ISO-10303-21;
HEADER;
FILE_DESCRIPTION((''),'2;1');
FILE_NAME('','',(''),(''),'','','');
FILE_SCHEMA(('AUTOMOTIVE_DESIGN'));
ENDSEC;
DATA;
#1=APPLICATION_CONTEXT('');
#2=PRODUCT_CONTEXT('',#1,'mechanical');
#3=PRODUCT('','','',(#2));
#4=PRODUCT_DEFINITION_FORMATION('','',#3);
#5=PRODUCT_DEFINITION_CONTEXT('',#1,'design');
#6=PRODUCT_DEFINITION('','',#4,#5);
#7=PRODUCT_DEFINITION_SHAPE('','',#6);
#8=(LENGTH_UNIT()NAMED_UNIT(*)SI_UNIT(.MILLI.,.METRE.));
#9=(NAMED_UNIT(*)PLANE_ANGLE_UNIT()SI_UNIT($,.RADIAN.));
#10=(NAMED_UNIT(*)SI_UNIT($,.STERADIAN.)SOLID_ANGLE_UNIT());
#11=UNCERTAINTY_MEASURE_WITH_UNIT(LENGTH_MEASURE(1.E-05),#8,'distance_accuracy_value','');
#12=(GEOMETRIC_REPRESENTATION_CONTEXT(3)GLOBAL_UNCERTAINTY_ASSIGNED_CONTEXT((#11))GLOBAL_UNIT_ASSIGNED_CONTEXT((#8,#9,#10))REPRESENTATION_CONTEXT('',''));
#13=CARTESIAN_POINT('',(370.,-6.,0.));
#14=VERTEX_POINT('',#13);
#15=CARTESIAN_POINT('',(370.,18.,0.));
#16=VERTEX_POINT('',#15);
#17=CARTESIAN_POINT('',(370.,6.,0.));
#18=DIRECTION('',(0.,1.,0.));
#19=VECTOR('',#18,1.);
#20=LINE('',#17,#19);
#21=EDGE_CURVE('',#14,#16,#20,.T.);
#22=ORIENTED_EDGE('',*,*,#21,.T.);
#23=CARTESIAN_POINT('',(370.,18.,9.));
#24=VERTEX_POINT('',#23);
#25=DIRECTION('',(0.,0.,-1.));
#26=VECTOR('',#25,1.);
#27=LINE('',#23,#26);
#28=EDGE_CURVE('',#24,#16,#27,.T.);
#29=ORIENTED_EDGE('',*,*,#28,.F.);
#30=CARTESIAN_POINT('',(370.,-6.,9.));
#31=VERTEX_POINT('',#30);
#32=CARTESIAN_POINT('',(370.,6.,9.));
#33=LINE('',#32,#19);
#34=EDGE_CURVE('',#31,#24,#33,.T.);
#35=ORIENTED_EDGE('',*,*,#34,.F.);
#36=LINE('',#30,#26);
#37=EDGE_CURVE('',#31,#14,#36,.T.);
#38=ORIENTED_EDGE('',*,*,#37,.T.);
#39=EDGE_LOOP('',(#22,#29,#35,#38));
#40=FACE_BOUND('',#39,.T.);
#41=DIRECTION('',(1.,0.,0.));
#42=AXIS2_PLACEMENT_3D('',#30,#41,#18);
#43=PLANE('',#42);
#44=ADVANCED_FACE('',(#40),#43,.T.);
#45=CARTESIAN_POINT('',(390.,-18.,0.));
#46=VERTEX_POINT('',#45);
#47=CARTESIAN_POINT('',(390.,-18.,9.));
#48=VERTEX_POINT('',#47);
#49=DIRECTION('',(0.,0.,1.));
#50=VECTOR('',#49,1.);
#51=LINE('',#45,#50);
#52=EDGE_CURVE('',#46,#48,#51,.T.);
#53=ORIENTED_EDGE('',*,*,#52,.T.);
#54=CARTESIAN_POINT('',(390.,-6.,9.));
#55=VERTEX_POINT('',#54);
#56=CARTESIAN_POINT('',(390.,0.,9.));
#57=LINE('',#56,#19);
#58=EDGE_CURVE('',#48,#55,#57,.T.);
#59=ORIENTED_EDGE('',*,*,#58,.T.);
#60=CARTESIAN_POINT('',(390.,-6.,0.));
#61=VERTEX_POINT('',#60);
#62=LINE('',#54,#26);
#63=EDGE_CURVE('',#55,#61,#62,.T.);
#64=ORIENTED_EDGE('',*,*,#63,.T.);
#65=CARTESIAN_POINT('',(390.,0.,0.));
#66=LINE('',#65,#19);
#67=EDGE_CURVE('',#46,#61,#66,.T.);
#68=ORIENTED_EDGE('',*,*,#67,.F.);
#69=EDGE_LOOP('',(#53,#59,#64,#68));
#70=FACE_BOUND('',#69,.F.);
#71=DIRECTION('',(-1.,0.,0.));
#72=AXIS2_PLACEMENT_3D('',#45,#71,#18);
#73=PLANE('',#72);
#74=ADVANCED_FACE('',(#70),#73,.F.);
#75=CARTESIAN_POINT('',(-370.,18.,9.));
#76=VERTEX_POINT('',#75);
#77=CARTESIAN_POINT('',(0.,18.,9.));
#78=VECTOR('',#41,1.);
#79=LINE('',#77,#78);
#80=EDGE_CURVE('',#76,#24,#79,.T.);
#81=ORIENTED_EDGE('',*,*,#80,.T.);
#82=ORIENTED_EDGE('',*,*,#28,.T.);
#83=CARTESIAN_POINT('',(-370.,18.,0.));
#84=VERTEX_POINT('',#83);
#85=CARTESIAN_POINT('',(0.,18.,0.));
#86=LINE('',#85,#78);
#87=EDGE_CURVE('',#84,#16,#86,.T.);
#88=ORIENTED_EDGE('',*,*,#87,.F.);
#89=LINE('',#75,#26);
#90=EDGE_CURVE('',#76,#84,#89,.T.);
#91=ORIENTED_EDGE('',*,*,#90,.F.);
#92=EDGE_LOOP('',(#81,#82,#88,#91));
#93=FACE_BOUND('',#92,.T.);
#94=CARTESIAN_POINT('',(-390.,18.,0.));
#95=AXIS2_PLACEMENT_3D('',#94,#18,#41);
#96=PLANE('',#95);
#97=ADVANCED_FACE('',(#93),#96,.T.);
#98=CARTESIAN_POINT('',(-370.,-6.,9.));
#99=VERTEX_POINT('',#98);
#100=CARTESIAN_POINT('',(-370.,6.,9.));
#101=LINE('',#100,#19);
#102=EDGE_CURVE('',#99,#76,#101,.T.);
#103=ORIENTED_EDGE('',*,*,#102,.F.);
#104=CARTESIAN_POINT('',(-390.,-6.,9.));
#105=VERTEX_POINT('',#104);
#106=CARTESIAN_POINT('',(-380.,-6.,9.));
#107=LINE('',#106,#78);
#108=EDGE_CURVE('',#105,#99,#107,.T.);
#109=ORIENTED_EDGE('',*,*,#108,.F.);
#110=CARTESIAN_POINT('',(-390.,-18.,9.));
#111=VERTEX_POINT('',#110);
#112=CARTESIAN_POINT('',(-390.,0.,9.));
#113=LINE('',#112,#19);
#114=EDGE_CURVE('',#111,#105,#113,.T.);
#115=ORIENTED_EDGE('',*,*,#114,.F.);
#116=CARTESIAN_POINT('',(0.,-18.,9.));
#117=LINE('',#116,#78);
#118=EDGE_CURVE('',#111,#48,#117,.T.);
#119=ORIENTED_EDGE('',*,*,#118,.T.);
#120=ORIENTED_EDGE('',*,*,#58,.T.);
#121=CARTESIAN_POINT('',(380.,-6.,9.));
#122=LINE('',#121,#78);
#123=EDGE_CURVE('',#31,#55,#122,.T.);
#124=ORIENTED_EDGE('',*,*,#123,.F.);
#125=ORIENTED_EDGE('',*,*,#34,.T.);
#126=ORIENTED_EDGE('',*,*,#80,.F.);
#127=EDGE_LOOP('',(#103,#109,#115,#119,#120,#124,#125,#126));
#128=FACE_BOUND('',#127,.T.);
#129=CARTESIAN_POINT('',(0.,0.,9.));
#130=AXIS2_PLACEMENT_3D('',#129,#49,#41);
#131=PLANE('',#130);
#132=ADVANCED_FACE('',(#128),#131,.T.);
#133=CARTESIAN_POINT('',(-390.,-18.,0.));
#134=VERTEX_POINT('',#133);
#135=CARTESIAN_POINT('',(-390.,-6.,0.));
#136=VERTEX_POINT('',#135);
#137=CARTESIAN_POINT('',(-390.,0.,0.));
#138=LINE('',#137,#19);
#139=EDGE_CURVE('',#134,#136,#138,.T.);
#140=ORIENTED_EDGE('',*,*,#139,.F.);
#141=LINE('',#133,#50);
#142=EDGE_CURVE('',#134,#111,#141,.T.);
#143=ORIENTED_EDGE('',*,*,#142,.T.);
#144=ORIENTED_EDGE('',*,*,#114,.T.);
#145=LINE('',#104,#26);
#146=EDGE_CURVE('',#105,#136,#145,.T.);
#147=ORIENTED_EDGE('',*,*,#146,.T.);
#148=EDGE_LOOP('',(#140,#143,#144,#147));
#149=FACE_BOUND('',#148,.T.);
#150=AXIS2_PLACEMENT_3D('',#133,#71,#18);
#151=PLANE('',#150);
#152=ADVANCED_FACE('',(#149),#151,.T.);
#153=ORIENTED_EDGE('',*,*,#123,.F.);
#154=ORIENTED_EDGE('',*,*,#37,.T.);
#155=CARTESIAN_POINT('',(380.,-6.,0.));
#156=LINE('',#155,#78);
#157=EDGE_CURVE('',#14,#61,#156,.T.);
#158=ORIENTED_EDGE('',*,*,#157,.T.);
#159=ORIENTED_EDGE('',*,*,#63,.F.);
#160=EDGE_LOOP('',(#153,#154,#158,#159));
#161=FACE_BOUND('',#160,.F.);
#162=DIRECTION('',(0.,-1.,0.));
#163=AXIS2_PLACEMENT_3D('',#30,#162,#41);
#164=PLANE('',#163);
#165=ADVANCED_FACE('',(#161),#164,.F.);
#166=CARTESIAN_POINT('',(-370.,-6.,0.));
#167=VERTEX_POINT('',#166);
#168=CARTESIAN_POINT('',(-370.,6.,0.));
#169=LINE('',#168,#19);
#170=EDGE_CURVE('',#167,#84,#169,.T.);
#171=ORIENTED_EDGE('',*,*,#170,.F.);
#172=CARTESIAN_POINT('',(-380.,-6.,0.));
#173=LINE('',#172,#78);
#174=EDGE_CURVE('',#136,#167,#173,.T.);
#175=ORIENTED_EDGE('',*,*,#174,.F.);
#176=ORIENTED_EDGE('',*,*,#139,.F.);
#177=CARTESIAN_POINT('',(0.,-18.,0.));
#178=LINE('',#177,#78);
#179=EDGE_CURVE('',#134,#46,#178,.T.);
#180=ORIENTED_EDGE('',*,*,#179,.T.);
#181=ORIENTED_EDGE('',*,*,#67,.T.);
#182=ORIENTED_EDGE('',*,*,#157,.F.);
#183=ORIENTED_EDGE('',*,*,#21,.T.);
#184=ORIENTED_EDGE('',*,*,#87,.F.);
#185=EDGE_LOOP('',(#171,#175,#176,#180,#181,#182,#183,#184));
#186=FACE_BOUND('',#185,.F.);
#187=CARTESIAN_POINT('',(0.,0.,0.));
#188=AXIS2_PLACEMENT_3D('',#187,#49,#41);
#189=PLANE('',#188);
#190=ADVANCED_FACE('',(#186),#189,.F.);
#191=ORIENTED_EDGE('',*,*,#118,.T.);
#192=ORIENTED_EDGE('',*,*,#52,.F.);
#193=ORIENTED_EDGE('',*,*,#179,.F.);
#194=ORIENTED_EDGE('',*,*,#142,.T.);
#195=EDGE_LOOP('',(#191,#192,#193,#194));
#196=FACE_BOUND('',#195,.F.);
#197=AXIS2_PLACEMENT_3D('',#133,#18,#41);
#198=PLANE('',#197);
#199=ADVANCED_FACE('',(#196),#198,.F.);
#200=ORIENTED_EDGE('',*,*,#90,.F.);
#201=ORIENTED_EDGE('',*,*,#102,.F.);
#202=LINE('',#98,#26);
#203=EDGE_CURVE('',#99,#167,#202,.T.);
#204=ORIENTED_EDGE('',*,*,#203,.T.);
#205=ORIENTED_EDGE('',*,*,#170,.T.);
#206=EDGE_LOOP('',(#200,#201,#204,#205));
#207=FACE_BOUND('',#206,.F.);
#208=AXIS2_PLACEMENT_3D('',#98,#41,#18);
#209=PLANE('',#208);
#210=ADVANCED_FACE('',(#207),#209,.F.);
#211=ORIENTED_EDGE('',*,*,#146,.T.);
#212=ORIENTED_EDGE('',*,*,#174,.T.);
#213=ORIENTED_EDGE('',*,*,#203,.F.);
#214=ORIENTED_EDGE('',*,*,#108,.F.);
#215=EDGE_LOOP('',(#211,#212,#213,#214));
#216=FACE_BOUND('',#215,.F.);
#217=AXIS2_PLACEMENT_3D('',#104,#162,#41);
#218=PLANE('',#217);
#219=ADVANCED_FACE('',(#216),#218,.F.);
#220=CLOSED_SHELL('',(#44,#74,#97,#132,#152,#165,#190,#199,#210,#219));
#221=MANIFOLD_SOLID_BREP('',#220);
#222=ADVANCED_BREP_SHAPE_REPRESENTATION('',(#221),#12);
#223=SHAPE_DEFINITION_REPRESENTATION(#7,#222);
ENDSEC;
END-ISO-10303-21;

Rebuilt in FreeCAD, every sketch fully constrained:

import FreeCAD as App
import Part
import Sketcher
from FreeCAD import Vector


def add_polygon(sketch, points):
    """Adds a closed chain of lines whose ends are joined by coincident constraints."""
    first, n = sketch.GeometryCount, len(points)
    for a, b in zip(points, points[1:] + points[:1]):
        sketch.addGeometry(Part.LineSegment(App.Vector(*a, 0), App.Vector(*b, 0)), False)
    for i in range(n):
        sketch.addConstraint(Sketcher.Constraint("Coincident", first + i, 2, first + (i + 1) % n, 1))

doc = App.newDocument("Part")
params = doc.addObject("Spreadsheet::Sheet", "Params")
for row, (alias, value) in enumerate([
    ("sketch1_width", "780 mm"),
    ("sketch1_height", "36 mm"),
    ("pad1_length", "9 mm"),
    ("sketch2_width", "20 mm"),
    ("sketch2_height", "24 mm"),
], start=1):
    params.set(f"A{row}", alias)
    params.set(f"B{row}", "=" + value)
    params.setAlias(f"B{row}", alias)

body = doc.addObject("PartDesign::Body", "Body")

sketch1 = body.newObject("Sketcher::SketchObject", "Sketch")
sketch1.AttachmentSupport = (doc.getObject("XY_Plane"), [""])
sketch1.MapMode = "FlatFace"
add_polygon(sketch1, [(-390, 18), (-390, -18), (390, -18), (390, 18)])
sketch1.addConstraint(Sketcher.Constraint("Vertical", 0))
sketch1.addConstraint(Sketcher.Constraint("Horizontal", 1))
sketch1.addConstraint(Sketcher.Constraint("Vertical", 2))
sketch1.addConstraint(Sketcher.Constraint("Horizontal", 3))
sketch1.addConstraint(Sketcher.Constraint("Symmetric", 0, 2, 2, 2, -1, 1))
sketch1.addConstraint(Sketcher.Constraint("DistanceX", 1, 1, 1, 2, 780.0))
sketch1.addConstraint(Sketcher.Constraint("DistanceY", 0, 2, 0, 1, 36.0))
sketch1.setExpression("Constraints[9]", "Params.sketch1_width")
sketch1.setExpression("Constraints[10]", "Params.sketch1_height")
pad1 = body.newObject("PartDesign::Pad", "Pad")
pad1.Profile = sketch1
pad1.setExpression("Length", "Params.pad1_length")

sketch2 = body.newObject("Sketcher::SketchObject", "Sketch001")
sketch2.AttachmentSupport = (doc.getObject("XY_Plane"), [""])
sketch2.MapMode = "FlatFace"
sketch2.AttachmentOffset = App.Placement(Vector(0, 0, 9), App.Rotation())
add_polygon(sketch2, [(-390, 18), (-390, -6), (-370, -6), (-370, 18)])
add_polygon(sketch2, [(370, 18), (370, -6), (390, -6), (390, 18)])
sketch2.addConstraint(Sketcher.Constraint("Vertical", 0))
sketch2.addConstraint(Sketcher.Constraint("Horizontal", 1))
sketch2.addConstraint(Sketcher.Constraint("Vertical", 2))
sketch2.addConstraint(Sketcher.Constraint("Horizontal", 3))
sketch2.addConstraint(Sketcher.Constraint("Vertical", 4))
sketch2.addConstraint(Sketcher.Constraint("Horizontal", 5))
sketch2.addConstraint(Sketcher.Constraint("Vertical", 6))
sketch2.addConstraint(Sketcher.Constraint("Horizontal", 7))
sketch2.addConstraint(Sketcher.Constraint("Symmetric", 1, 2, 4, 2, -2))
sketch2.addConstraint(Sketcher.Constraint("Symmetric", 3, 2, 6, 2, -2))
sketch2.addConstraint(Sketcher.Constraint("DistanceX", 1, 1, 1, 2, 20.0))
sketch2.addConstraint(Sketcher.Constraint("DistanceY", 0, 2, 0, 1, 24.0))
sketch2.addConstraint(Sketcher.Constraint("DistanceX", 0, 2, -1, 1, 390.0))
sketch2.addConstraint(Sketcher.Constraint("DistanceY", 0, 2, -1, 1, 6.0))
sketch2.setExpression("Constraints[18]", "Params.sketch2_width")
sketch2.setExpression("Constraints[19]", "Params.sketch2_height")
pocket1 = body.newObject("PartDesign::Pocket", "Pocket")
pocket1.Profile = sketch2
pocket1.Type = "ThroughAll"

doc.recompute()
